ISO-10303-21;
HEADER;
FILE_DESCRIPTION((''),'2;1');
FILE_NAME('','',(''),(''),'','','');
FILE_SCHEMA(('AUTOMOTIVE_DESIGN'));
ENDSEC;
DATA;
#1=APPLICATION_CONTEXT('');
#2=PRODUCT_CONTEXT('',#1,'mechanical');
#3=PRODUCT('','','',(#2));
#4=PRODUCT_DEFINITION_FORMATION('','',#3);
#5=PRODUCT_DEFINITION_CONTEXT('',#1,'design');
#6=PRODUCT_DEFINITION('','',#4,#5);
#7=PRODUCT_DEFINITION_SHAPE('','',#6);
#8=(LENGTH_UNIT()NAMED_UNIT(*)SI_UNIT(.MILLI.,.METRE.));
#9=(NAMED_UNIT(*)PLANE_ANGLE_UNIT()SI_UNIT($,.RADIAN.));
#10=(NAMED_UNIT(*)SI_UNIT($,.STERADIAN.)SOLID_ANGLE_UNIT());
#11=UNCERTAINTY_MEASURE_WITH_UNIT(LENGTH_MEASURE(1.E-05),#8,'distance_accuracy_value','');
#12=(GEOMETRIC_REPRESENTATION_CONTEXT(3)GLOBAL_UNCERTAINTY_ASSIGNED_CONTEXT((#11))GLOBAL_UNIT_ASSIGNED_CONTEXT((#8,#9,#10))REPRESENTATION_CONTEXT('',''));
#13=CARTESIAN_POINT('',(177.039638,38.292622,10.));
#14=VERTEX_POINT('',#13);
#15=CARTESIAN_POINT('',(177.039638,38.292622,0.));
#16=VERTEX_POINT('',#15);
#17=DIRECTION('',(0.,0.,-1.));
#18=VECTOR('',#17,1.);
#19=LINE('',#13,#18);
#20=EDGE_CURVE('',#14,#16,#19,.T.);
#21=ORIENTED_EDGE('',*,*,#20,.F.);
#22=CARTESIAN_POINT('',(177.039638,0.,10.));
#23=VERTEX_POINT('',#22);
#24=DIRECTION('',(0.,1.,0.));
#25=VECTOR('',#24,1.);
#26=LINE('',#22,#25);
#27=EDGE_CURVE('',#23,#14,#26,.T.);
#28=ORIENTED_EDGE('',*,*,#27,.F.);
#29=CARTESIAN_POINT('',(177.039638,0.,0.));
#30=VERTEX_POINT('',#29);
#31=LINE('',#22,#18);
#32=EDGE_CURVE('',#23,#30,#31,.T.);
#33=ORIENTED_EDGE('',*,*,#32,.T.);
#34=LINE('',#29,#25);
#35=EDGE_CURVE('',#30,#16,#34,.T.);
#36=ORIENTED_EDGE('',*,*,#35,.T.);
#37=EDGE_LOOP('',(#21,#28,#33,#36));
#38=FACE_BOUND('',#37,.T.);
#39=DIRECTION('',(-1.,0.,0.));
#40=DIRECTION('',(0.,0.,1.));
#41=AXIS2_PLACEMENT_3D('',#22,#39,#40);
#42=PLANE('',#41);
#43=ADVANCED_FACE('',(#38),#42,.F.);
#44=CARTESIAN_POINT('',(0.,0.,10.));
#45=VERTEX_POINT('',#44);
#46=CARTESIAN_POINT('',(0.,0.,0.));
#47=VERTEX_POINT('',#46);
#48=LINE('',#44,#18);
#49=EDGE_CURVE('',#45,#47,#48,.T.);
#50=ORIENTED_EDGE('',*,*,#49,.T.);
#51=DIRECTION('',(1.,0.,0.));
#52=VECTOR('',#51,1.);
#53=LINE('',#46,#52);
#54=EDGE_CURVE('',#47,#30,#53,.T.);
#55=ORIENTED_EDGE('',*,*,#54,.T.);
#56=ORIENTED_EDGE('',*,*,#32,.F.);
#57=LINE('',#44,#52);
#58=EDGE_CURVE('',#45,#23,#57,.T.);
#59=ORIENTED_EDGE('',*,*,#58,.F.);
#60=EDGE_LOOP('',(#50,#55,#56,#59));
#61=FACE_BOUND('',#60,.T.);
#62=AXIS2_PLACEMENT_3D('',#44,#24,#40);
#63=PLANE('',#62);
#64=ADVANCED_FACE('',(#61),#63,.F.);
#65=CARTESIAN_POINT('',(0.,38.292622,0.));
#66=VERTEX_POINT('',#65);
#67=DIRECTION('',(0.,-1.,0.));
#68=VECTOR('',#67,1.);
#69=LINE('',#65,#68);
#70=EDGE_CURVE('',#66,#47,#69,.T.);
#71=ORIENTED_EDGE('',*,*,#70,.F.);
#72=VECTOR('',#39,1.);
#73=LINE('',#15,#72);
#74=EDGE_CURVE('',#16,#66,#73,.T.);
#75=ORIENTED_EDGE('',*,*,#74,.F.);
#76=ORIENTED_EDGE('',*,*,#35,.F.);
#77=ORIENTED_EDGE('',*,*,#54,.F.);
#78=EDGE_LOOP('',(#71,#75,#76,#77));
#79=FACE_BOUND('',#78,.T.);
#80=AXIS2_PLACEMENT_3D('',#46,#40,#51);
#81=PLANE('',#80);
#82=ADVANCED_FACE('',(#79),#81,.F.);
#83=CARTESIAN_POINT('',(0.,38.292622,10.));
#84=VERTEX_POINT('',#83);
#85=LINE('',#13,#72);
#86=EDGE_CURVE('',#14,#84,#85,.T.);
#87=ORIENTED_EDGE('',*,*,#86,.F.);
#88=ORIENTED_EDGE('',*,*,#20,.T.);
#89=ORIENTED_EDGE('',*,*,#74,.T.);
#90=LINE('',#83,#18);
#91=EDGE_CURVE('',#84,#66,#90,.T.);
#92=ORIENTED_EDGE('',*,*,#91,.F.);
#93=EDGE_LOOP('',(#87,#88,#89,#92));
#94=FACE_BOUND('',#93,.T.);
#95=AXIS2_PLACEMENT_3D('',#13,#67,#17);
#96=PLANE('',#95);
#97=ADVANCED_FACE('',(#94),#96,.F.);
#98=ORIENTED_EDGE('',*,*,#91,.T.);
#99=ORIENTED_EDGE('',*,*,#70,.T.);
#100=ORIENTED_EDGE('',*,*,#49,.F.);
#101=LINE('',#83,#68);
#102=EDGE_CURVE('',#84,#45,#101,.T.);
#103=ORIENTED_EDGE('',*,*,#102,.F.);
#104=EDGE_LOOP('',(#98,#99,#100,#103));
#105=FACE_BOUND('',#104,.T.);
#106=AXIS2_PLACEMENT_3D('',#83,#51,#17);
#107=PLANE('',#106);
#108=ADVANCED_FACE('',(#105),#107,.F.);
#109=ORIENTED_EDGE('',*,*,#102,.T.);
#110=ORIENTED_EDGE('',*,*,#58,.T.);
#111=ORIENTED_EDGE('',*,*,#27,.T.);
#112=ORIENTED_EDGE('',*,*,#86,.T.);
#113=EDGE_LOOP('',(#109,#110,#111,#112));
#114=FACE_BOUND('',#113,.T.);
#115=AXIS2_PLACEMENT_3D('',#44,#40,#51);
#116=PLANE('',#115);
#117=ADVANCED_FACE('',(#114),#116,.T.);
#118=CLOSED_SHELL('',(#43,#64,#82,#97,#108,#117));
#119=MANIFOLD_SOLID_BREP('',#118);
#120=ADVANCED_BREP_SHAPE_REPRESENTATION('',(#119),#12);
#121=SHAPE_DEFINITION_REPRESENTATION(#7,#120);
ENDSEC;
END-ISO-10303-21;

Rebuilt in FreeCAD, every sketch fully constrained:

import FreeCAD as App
import Part
import Sketcher

V = App.Vector
Q = App.Units.Quantity

doc = App.newDocument("Part")
params = doc.addObject("Spreadsheet::Sheet", "Params")
for row, (alias, value) in enumerate([
    ("pad1_length", "10 mm"),
], start=1):
    params.set(f"A{row}", alias)
    params.set(f"B{row}", "=" + value)
    params.setAlias(f"B{row}", alias)

body = doc.addObject("PartDesign::Body", "Body")

sketch1 = body.newObject("Sketcher::SketchObject", "Sketch")
sketch1.AttachmentSupport = (doc.getObject("XY_Plane"), [""])
sketch1.MapMode = "FlatFace"
sketch1.addGeometry([
    Part.LineSegment(V(0, 38, 0), V(0, 0, 0)),
    Part.LineSegment(V(0, 0, 0), V(177, 0, 0)),
    Part.LineSegment(V(177, 0, 0), V(177, 38, 0)),
    Part.LineSegment(V(177, 38, 0), V(0, 38, 0)),
], False)
sketch1.addConstraint([
    Sketcher.Constraint("Coincident", 0, 2, 1, 1),
    Sketcher.Constraint("Coincident", 1, 2, 2, 1),
    Sketcher.Constraint("Coincident", 2, 2, 3, 1),
    Sketcher.Constraint("Coincident", 3, 2, 0, 1),
    Sketcher.Constraint("Vertical", 0),
    Sketcher.Constraint("Horizontal", 1),
    Sketcher.Constraint("Vertical", 2),
    Sketcher.Constraint("Horizontal", 3),
    Sketcher.Constraint("Coincident", 0, 2, -1, 1),
    Sketcher.Constraint("DistanceX", 1, 1, 1, 2, Q("177.039638 mm")),
    Sketcher.Constraint("DistanceY", 0, 2, 0, 1, Q("38.292622 mm")),
])
pad1 = body.newObject("PartDesign::Pad", "Pad")
pad1.Profile = sketch1
pad1.setExpression("Length", "Params.pad1_length")

doc.recompute()
